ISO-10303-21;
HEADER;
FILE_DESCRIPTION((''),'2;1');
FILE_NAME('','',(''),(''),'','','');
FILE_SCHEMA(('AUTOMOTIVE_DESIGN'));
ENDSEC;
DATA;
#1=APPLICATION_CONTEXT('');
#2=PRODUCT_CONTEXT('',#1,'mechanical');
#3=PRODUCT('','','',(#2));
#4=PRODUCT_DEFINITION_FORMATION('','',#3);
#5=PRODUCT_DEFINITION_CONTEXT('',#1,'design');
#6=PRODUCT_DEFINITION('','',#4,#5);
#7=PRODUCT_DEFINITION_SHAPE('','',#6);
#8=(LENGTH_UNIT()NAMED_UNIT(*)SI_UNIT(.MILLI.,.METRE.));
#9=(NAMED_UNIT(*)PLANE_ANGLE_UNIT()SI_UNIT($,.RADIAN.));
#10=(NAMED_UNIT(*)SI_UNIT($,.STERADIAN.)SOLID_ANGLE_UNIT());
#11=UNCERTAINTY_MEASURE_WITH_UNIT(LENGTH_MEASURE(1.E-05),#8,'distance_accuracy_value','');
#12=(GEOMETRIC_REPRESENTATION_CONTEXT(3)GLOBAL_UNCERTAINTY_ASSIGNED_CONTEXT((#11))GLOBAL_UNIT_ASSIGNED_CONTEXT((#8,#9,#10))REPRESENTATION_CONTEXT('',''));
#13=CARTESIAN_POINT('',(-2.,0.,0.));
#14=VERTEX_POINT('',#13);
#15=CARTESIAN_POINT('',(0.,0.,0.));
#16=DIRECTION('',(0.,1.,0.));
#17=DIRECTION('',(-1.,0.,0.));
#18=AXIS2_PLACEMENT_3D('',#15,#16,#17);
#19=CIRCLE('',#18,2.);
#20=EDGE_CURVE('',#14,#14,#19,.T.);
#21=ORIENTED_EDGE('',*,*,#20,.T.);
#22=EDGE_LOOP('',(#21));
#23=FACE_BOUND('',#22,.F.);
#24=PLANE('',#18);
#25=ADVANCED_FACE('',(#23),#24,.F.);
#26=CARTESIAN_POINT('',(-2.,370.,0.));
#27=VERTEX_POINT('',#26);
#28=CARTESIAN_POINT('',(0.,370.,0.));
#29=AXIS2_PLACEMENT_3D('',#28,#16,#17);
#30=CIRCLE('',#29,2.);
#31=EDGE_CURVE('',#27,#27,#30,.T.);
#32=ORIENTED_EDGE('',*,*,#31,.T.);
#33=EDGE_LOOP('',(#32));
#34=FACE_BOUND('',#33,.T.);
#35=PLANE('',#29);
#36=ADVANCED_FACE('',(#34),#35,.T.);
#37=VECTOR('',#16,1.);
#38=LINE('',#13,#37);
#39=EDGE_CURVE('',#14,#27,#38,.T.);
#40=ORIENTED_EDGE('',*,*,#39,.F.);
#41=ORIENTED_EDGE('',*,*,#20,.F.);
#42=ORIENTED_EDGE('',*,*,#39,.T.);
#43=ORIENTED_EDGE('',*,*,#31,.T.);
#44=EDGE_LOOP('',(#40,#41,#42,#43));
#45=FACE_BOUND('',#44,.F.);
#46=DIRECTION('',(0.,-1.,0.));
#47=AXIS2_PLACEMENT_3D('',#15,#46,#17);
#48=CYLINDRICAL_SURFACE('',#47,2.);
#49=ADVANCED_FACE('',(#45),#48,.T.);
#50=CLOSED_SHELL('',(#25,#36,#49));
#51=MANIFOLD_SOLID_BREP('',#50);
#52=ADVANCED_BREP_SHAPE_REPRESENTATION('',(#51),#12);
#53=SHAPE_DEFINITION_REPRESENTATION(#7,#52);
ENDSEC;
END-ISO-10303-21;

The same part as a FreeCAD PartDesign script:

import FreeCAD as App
import Part
import Sketcher
from FreeCAD import Vector

doc = App.newDocument("Part")
body = doc.addObject("PartDesign::Body", "Body")

sketch1 = doc.addObject("Sketcher::SketchObject", "Sketch")
body.addObject(sketch1)
sketch1.AttachmentSupport = (doc.XZ_Plane, [""])
sketch1.MapMode = "FlatFace"
sketch1.addGeometry(Part.Circle(Vector(0, 0, 0), Vector(0, 0, 1), 2), False)
sketch1.addConstraint([
    Sketcher.Constraint("Coincident", 0, 3, -1, 1),
    Sketcher.Constraint("Diameter", 0, 4.0),
])
pad1 = doc.addObject("PartDesign::Pad", "Pad")
body.addObject(pad1)
pad1.Profile = sketch1
pad1.Length = 370
pad1.Reversed = True

doc.recompute()
